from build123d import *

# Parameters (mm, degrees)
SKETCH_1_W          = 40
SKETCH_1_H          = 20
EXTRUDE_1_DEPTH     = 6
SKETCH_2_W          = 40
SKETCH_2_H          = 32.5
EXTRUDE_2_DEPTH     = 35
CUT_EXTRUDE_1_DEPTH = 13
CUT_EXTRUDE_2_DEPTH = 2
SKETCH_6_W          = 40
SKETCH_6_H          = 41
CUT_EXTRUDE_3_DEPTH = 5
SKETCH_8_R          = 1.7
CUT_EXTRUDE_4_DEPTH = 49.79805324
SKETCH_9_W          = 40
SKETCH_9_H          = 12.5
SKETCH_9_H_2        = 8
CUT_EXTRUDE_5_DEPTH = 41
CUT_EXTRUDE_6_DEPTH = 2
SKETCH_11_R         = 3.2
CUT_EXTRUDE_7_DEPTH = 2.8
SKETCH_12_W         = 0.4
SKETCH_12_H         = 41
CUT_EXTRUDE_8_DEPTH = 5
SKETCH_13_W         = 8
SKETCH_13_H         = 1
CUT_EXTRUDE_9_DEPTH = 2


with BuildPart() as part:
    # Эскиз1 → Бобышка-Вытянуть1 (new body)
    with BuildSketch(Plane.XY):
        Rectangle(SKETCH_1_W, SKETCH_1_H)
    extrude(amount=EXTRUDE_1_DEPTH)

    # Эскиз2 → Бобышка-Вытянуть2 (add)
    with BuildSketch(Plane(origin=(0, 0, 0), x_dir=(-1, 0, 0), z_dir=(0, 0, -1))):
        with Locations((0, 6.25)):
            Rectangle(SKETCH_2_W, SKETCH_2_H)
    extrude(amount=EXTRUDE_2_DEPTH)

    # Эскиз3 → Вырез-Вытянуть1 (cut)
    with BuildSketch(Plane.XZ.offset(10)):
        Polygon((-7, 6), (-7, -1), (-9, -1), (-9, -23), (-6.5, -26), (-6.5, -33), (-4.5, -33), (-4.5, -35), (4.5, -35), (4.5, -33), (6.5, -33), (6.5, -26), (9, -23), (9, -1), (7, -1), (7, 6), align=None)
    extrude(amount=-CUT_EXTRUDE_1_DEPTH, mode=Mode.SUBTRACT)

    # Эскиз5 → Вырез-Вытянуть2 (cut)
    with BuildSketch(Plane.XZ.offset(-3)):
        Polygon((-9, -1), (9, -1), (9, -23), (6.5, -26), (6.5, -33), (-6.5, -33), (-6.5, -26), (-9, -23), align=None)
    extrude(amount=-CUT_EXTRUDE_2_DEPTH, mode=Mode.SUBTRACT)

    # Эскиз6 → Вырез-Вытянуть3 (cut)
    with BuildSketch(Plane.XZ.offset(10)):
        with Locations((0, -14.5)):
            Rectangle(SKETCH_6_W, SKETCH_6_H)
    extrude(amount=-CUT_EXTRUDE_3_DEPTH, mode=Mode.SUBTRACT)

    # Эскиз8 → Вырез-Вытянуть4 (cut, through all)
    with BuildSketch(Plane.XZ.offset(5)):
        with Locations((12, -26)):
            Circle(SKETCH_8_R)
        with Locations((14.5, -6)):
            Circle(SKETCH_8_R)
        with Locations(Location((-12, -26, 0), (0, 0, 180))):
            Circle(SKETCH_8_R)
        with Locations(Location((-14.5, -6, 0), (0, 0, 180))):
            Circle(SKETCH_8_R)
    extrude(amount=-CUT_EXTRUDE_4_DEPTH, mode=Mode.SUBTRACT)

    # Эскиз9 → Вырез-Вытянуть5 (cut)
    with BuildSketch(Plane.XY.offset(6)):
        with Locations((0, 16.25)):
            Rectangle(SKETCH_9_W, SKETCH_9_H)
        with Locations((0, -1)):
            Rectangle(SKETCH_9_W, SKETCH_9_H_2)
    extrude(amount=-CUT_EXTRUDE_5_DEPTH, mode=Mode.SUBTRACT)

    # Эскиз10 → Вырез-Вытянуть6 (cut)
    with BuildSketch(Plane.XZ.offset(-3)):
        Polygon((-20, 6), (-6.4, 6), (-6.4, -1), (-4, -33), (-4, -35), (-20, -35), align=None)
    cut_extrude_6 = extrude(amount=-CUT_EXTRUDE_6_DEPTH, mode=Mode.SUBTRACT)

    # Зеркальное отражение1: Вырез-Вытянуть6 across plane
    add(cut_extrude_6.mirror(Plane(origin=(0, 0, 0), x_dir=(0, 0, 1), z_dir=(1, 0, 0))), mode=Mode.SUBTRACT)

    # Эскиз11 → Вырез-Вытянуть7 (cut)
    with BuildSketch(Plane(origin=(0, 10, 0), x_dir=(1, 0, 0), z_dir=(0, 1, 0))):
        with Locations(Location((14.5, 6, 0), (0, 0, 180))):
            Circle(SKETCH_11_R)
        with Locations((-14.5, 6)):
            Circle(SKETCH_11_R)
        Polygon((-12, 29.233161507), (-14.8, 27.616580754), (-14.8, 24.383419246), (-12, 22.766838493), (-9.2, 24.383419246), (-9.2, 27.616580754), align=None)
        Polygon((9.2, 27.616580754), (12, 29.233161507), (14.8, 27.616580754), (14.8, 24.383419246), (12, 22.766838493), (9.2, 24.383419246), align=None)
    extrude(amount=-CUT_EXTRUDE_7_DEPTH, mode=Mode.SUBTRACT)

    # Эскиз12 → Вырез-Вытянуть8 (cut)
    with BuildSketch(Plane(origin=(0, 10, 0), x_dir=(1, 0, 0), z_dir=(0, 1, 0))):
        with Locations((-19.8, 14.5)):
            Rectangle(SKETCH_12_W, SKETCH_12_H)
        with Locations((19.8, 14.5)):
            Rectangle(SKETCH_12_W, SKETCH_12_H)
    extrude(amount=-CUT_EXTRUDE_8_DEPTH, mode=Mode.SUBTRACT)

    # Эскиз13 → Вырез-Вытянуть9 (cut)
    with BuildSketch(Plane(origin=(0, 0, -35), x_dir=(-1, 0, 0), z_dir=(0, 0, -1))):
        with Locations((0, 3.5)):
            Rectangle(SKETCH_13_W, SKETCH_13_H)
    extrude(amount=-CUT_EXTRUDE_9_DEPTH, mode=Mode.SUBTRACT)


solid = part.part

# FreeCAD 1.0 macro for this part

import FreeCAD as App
import Part
import Sketcher
from FreeCAD import Vector
Q = App.Units.Quantity


def add_polygon(sketch, points):
    """Adds a closed chain of lines whose ends are joined by coincident constraints."""
    first, n = sketch.GeometryCount, len(points)
    for a, b in zip(points, points[1:] + points[:1]):
        sketch.addGeometry(Part.LineSegment(App.Vector(*a, 0), App.Vector(*b, 0)), False)
    for i in range(n):
        sketch.addConstraint(Sketcher.Constraint("Coincident", first + i, 2, first + (i + 1) % n, 1))

doc = App.newDocument("Part")
body = doc.addObject("PartDesign::Body", "Body")

sketch1 = body.newObject("Sketcher::SketchObject", "Sketch")
sketch1.AttachmentSupport = (doc.getObject("XY_Plane"), [""])
sketch1.MapMode = "FlatFace"
add_polygon(sketch1, [(-20, 10), (-20, -10), (20, -10), (20, 10)])
sketch1.addConstraint(Sketcher.Constraint("Vertical", 0))
sketch1.addConstraint(Sketcher.Constraint("Horizontal", 1))
sketch1.addConstraint(Sketcher.Constraint("Vertical", 2))
sketch1.addConstraint(Sketcher.Constraint("Horizontal", 3))
sketch1.addConstraint(Sketcher.Constraint("Symmetric", 0, 2, 2, 2, -1, 1))
sketch1.addConstraint(Sketcher.Constraint("DistanceX", 1, 1, 1, 2, Q("40 mm")))
sketch1.addConstraint(Sketcher.Constraint("DistanceY", 0, 2, 0, 1, Q("20 mm")))
pad1 = body.newObject("PartDesign::Pad", "Pad")
pad1.Profile = sketch1
pad1.Length = 6

sketch2 = body.newObject("Sketcher::SketchObject", "Sketch001")
sketch2.AttachmentSupport = (doc.getObject("XY_Plane"), [""])
sketch2.MapMode = "FlatFace"
add_polygon(sketch2, [(20, 22), (20, -10), (-20, -10), (-20, 22)])
sketch2.addConstraint(Sketcher.Constraint("Vertical", 0))
sketch2.addConstraint(Sketcher.Constraint("Horizontal", 1))
sketch2.addConstraint(Sketcher.Constraint("Vertical", 2))
sketch2.addConstraint(Sketcher.Constraint("Horizontal", 3))
sketch2.addConstraint(Sketcher.Constraint("DistanceX", 1, 2, 1, 1, Q("40 mm")))
sketch2.addConstraint(Sketcher.Constraint("DistanceY", 0, 2, 0, 1, Q("32.5 mm")))
sketch2.addConstraint(Sketcher.Constraint("DistanceX", -1, 1, 0, 2, Q("20 mm")))
sketch2.addConstraint(Sketcher.Constraint("DistanceY", 0, 2, -1, 1, Q("10 mm")))
pad2 = body.newObject("PartDesign::Pad", "Pad001")
pad2.Profile = sketch2
pad2.Length = 35
pad2.Reversed = True

sketch3 = body.newObject("Sketcher::SketchObject", "Sketch002")
sketch3.AttachmentSupport = (doc.getObject("XZ_Plane"), [""])
sketch3.MapMode = "FlatFace"
sketch3.AttachmentOffset = App.Placement(Vector(0, 0, 10), App.Rotation())
add_polygon(sketch3, [(-7, 6), (-7, -1), (-9, -1), (-9, -23), (-6.5, -26), (-6.5, -33), (-4.5, -33), (-4.5, -35), (4.5, -35), (4.5, -33), (6.5, -33), (6.5, -26), (9, -23), (9, -1), (7, -1), (7, 6)])
sketch3.addConstraint(Sketcher.Constraint("Vertical", 0))
sketch3.addConstraint(Sketcher.Constraint("Horizontal", 1))
sketch3.addConstraint(Sketcher.Constraint("Vertical", 2))
sketch3.addConstraint(Sketcher.Constraint("Vertical", 4))
sketch3.addConstraint(Sketcher.Constraint("Horizontal", 5))
sketch3.addConstraint(Sketcher.Constraint("Vertical", 6))
sketch3.addConstraint(Sketcher.Constraint("Horizontal", 7))
sketch3.addConstraint(Sketcher.Constraint("Vertical", 8))
sketch3.addConstraint(Sketcher.Constraint("Horizontal", 9))
sketch3.addConstraint(Sketcher.Constraint("Vertical", 10))
sketch3.addConstraint(Sketcher.Constraint("Vertical", 12))
sketch3.addConstraint(Sketcher.Constraint("Horizontal", 13))
sketch3.addConstraint(Sketcher.Constraint("Vertical", 14))
sketch3.addConstraint(Sketcher.Constraint("Horizontal", 15))
sketch3.addConstraint(Sketcher.Constraint("Symmetric", 5, 2, 8, 2, -2))
sketch3.addConstraint(Sketcher.Constraint("Symmetric", 3, 2, 10, 2, -2))
sketch3.addConstraint(Sketcher.Constraint("Symmetric", 2, 2, 11, 2, -2))
sketch3.addConstraint(Sketcher.Constraint("Symmetric", 0, 2, 13, 2, -2))
sketch3.addConstraint(Sketcher.Constraint("Equal", 1, 5))
sketch3.addConstraint(Sketcher.Constraint("Equal", 0, 4))
sketch3.addConstraint(Sketcher.Constraint("Equal", 13, 6))
sketch3.addConstraint(Sketcher.Constraint("DistanceX", 1, 2, 1, 1, Q("2 mm")))
sketch3.addConstraint(Sketcher.Constraint("DistanceX", 7, 1, 7, 2, Q("9 mm")))
sketch3.addConstraint(Sketcher.Constraint("DistanceX", 15, 2, 15, 1, Q("14 mm")))
sketch3.addConstraint(Sketcher.Constraint("DistanceY", 0, 2, 0, 1, Q("7 mm")))
sketch3.addConstraint(Sketcher.Constraint("DistanceY", 2, 2, 2, 1, Q("22 mm")))
sketch3.addConstraint(Sketcher.Constraint("DistanceY", 0, 2, -1, 1, Q("1 mm")))
sketch3.addConstraint(Sketcher.Constraint("DistanceY", 3, 2, -1, 1, Q("26 mm")))
pocket1 = body.newObject("PartDesign::Pocket", "Pocket")
pocket1.Profile = sketch3
pocket1.Length = 13

sketch4 = body.newObject("Sketcher::SketchObject", "Sketch003")
sketch4.AttachmentSupport = (doc.getObject("XZ_Plane"), [""])
sketch4.MapMode = "FlatFace"
sketch4.AttachmentOffset = App.Placement(Vector(0, 0, -3), App.Rotation())
add_polygon(sketch4, [(9, -1), (-9, -1), (-9, -23), (-6.5, -26), (-6.5, -33), (6.5, -33), (6.5, -26), (9, -23)])
sketch4.addConstraint(Sketcher.Constraint("Horizontal", 0))
sketch4.addConstraint(Sketcher.Constraint("Vertical", 1))
sketch4.addConstraint(Sketcher.Constraint("Vertical", 3))
sketch4.addConstraint(Sketcher.Constraint("Horizontal", 4))
sketch4.addConstraint(Sketcher.Constraint("Vertical", 5))
sketch4.addConstraint(Sketcher.Constraint("Vertical", 7))
sketch4.addConstraint(Sketcher.Constraint("Symmetric", 2, 2, 5, 2, -2))
sketch4.addConstraint(Sketcher.Constraint("Symmetric", 1, 2, 6, 2, -2))
sketch4.addConstraint(Sketcher.Constraint("DistanceX", 0, 2, 0, 1, Q("18 mm")))
sketch4.addConstraint(Sketcher.Constraint("DistanceX", 4, 1, 4, 2, Q("13 mm")))
sketch4.addConstraint(Sketcher.Constraint("DistanceY", 1, 2, 1, 1, Q("22 mm")))
sketch4.addConstraint(Sketcher.Constraint("DistanceY", 3, 2, 3, 1, Q("7 mm")))
sketch4.addConstraint(Sketcher.Constraint("DistanceY", 0, 2, -1, 1, Q("1 mm")))
sketch4.addConstraint(Sketcher.Constraint("DistanceY", 2, 2, -1, 1, Q("26 mm")))
pocket2 = body.newObject("PartDesign::Pocket", "Pocket001")
pocket2.Profile = sketch4
pocket2.Length = 2

sketch5 = body.newObject("Sketcher::SketchObject", "Sketch004")
sketch5.AttachmentSupport = (doc.getObject("XZ_Plane"), [""])
sketch5.MapMode = "FlatFace"
sketch5.AttachmentOffset = App.Placement(Vector(0, 0, 10), App.Rotation())
add_polygon(sketch5, [(-20, 6), (-20, -35), (20, -35), (20, 6)])
sketch5.addConstraint(Sketcher.Constraint("Vertical", 0))
sketch5.addConstraint(Sketcher.Constraint("Horizontal", 1))
sketch5.addConstraint(Sketcher.Constraint("Vertical", 2))
sketch5.addConstraint(Sketcher.Constraint("Horizontal", 3))
sketch5.addConstraint(Sketcher.Constraint("DistanceX", 1, 1, 1, 2, Q("40 mm")))
sketch5.addConstraint(Sketcher.Constraint("DistanceY", 0, 2, 0, 1, Q("41 mm")))
sketch5.addConstraint(Sketcher.Constraint("DistanceX", 0, 2, -1, 1, Q("20 mm")))
sketch5.addConstraint(Sketcher.Constraint("DistanceY", 0, 2, -1, 1, Q("35 mm")))
pocket3 = body.newObject("PartDesign::Pocket", "Pocket002")
pocket3.Profile = sketch5
pocket3.Length = 5

sketch6 = body.newObject("Sketcher::SketchObject", "Sketch005")
sketch6.AttachmentSupport = (doc.getObject("XZ_Plane"), [""])
sketch6.MapMode = "FlatFace"
sketch6.AttachmentOffset = App.Placement(Vector(0, 0, 5), App.Rotation())
sketch6.addGeometry(Part.Circle(Vector(12, -26, 0), Vector(0, 0, 1), 1.7), False)
sketch6.addGeometry(Part.Circle(Vector(14.5, -6, 0), Vector(0, 0, 1), 1.7), False)
sketch6.addGeometry(Part.Circle(Vector(-12, -26, 0), Vector(0, 0, 1), 1.7), False)
sketch6.addGeometry(Part.Circle(Vector(-14.5, -6, 0), Vector(0, 0, 1), 1.7), False)
sketch6.addConstraint(Sketcher.Constraint("Equal", 0, 1))
sketch6.addConstraint(Sketcher.Constraint("Equal", 1, 2))
sketch6.addConstraint(Sketcher.Constraint("Equal", 2, 3))
sketch6.addConstraint(Sketcher.Constraint("Symmetric", 0, 3, 2, 3, -2))
sketch6.addConstraint(Sketcher.Constraint("Symmetric", 1, 3, 3, 3, -2))
sketch6.addConstraint(Sketcher.Constraint("Diameter", 0, Q("3.4 mm")))
sketch6.addConstraint(Sketcher.Constraint("DistanceX", -1, 1, 0, 3, Q("12 mm")))
sketch6.addConstraint(Sketcher.Constraint("DistanceY", 0, 3, -1, 1, Q("26 mm")))
sketch6.addConstraint(Sketcher.Constraint("DistanceY", 1, 3, -1, 1, Q("6 mm")))
sketch6.addConstraint(Sketcher.Constraint("DistanceX", 3, 3, 1, 3, Q("29 mm")))
pocket4 = body.newObject("PartDesign::Pocket", "Pocket003")
pocket4.Profile = sketch6
pocket4.Type = "ThroughAll"

sketch7 = body.newObject("Sketcher::SketchObject", "Sketch006")
sketch7.AttachmentSupport = (doc.getObject("XY_Plane"), [""])
sketch7.MapMode = "FlatFace"
sketch7.AttachmentOffset = App.Placement(Vector(0, 0, 6), App.Rotation())
add_polygon(sketch7, [(-20, 22), (-20, 10), (20, 10), (20, 22)])
add_polygon(sketch7, [(-20, 3), (-20, -5), (20, -5), (20, 3)])
sketch7.addConstraint(Sketcher.Constraint("Vertical", 0))
sketch7.addConstraint(Sketcher.Constraint("Horizontal", 1))
sketch7.addConstraint(Sketcher.Constraint("Vertical", 2))
sketch7.addConstraint(Sketcher.Constraint("Horizontal", 3))
sketch7.addConstraint(Sketcher.Constraint("Vertical", 4))
sketch7.addConstraint(Sketcher.Constraint("Horizontal", 5))
sketch7.addConstraint(Sketcher.Constraint("Vertical", 6))
sketch7.addConstraint(Sketcher.Constraint("Horizontal", 7))
sketch7.addConstraint(Sketcher.Constraint("Vertical", 3, 2, 4, 2))
sketch7.addConstraint(Sketcher.Constraint("Vertical", 2, 2, 5, 2))
sketch7.addConstraint(Sketcher.Constraint("DistanceX", 1, 1, 1, 2, Q("40 mm")))
sketch7.addConstraint(Sketcher.Constraint("DistanceY", 4, 2, 4, 1, Q("8 mm")))
sketch7.addConstraint(Sketcher.Constraint("DistanceY", 0, 2, 0, 1, Q("12.5 mm")))
sketch7.addConstraint(Sketcher.Constraint("DistanceX", 0, 2, -1, 1, Q("20 mm")))
sketch7.addConstraint(Sketcher.Constraint("DistanceY", -1, 1, 0, 2, Q("10 mm")))
sketch7.addConstraint(Sketcher.Constraint("DistanceY", 4, 2, -1, 1, Q("5 mm")))
pocket5 = body.newObject("PartDesign::Pocket", "Pocket004")
pocket5.Profile = sketch7
pocket5.Length = 41

sketch8 = body.newObject("Sketcher::SketchObject", "Sketch007")
sketch8.AttachmentSupport = (doc.getObject("XZ_Plane"), [""])
sketch8.MapMode = "FlatFace"
sketch8.AttachmentOffset = App.Placement(Vector(0, 0, -3), App.Rotation())
add_polygon(sketch8, [(-6.4, 6), (-20, 6), (-20, -35), (-4, -35), (-4, -33), (-6.4, -1)])
sketch8.addConstraint(Sketcher.Constraint("Horizontal", 0))
sketch8.addConstraint(Sketcher.Constraint("Vertical", 1))
sketch8.addConstraint(Sketcher.Constraint("Horizontal", 2))
sketch8.addConstraint(Sketcher.Constraint("Vertical", 3))
sketch8.addConstraint(Sketcher.Constraint("Vertical", 5))
sketch8.addConstraint(Sketcher.Constraint("DistanceX", 2, 1, 2, 2, Q("16 mm")))
sketch8.addConstraint(Sketcher.Constraint("DistanceY", 1, 2, 1, 1, Q("41 mm")))
sketch8.addConstraint(Sketcher.Constraint("DistanceY", 3, 1, 3, 2, Q("2 mm")))
sketch8.addConstraint(Sketcher.Constraint("DistanceY", 5, 1, 5, 2, Q("7 mm")))
sketch8.addConstraint(Sketcher.Constraint("DistanceX", 0, 2, 0, 1, Q("13.6 mm")))
sketch8.addConstraint(Sketcher.Constraint("DistanceX", 0, 2, -1, 1, Q("20 mm")))
sketch8.addConstraint(Sketcher.Constraint("DistanceY", -1, 1, 0, 2, Q("6 mm")))
pocket6 = body.newObject("PartDesign::Pocket", "Pocket005")
pocket6.Profile = sketch8
pocket6.Length = 2
doc.recompute()

mirrored = body.newObject("PartDesign::Mirrored", "Mirrored")
mirrored.Originals = [pocket6]
mirrored.MirrorPlane = (doc.getObject("YZ_Plane"), [""])
body.Tip = mirrored

sketch9 = body.newObject("Sketcher::SketchObject", "Sketch008")
sketch9.AttachmentSupport = (doc.getObject("XZ_Plane"), [""])
sketch9.MapMode = "FlatFace"
sketch9.AttachmentOffset = App.Placement(Vector(0, 0, -10), App.Rotation())
sketch9.addGeometry(Part.Circle(Vector(14.5, -6, 0), Vector(0, 0, 1), 3.2), False)
sketch9.addGeometry(Part.Circle(Vector(-14.5, -6, 0), Vector(0, 0, 1), 3.2), False)
add_polygon(sketch9, [(-12, -29.2), (-14.8, -27.6), (-14.8, -24.4), (-12, -22.8), (-9.2, -24.4), (-9.2, -27.6)])
add_polygon(sketch9, [(12, -29.2), (9.2, -27.6), (9.2, -24.4), (12, -22.8), (14.8, -24.4), (14.8, -27.6)])
sketch9.addConstraint(Sketcher.Constraint("Vertical", 3))
sketch9.addConstraint(Sketcher.Constraint("Vertical", 6))
sketch9.addConstraint(Sketcher.Constraint("Vertical", 9))
sketch9.addConstraint(Sketcher.Constraint("Vertical", 12))
sketch9.addConstraint(Sketcher.Constraint("Equal", 0, 1))
sketch9.addConstraint(Sketcher.Constraint("Symmetric", 0, 3, 1, 3, -2))
sketch9.addConstraint(Sketcher.Constraint("Symmetric", 6, 2, 8, 2, -2))
sketch9.addConstraint(Sketcher.Constraint("Symmetric", 4, 2, 10, 2, -2))
sketch9.addConstraint(Sketcher.Constraint("Symmetric", 3, 2, 11, 2, -2))
sketch9.addConstraint(Sketcher.Constraint("Symmetric", 7, 2, 13, 2, -2))
sketch9.addConstraint(Sketcher.Constraint("Parallel", 2, 5))
sketch9.addConstraint(Sketcher.Constraint("Parallel", 4, 7))
sketch9.addConstraint(Sketcher.Constraint("Parallel", 5, 8))
sketch9.addConstraint(Sketcher.Constraint("Parallel", 7, 10))
sketch9.addConstraint(Sketcher.Constraint("Parallel", 10, 13))
sketch9.addConstraint(Sketcher.Constraint("Horizontal", 3, 2, 5, 2))
sketch9.addConstraint(Sketcher.Constraint("Horizontal", 2, 2, 6, 2))
sketch9.addConstraint(Sketcher.Constraint("Diameter", 0, Q("6.4 mm")))
sketch9.addConstraint(Sketcher.Constraint("Angle", 2, Q("150 deg")))
sketch9.addConstraint(Sketcher.Constraint("DistanceY", 0, 3, -1, 1, Q("6 mm")))
sketch9.addConstraint(Sketcher.Constraint("DistanceX", 4, 2, -1, 1, Q("12 mm")))
sketch9.addConstraint(Sketcher.Constraint("DistanceX", 1, 3, 0, 3, Q("29 mm")))
sketch9.addConstraint(Sketcher.Constraint("DistanceX", 2, 2, -1, 1, Q("14.8 mm")))
sketch9.addConstraint(Sketcher.Constraint("DistanceY", 3, 1, 3, 2, Q("3.233162 mm")))
sketch9.addConstraint(Sketcher.Constraint("DistanceY", 2, 2, -1, 1, Q("27.616581 mm")))
pocket7 = body.newObject("PartDesign::Pocket", "Pocket006")
pocket7.Profile = sketch9
pocket7.Length = 2.8
pocket7.Reversed = True

sketch10 = body.newObject("Sketcher::SketchObject", "Sketch009")
sketch10.AttachmentSupport = (doc.getObject("XZ_Plane"), [""])
sketch10.MapMode = "FlatFace"
sketch10.AttachmentOffset = App.Placement(Vector(0, 0, -10), App.Rotation())
add_polygon(sketch10, [(-20, -35), (-20, 6), (-19.6, 6), (-19.6, -35)])
add_polygon(sketch10, [(19.6, -35), (19.6, 6), (20, 6), (20, -35)])
sketch10.addConstraint(Sketcher.Constraint("Vertical", 0))
sketch10.addConstraint(Sketcher.Constraint("Horizontal", 1))
sketch10.addConstraint(Sketcher.Constraint("Vertical", 2))
sketch10.addConstraint(Sketcher.Constraint("Horizontal", 3))
sketch10.addConstraint(Sketcher.Constraint("Vertical", 4))
sketch10.addConstraint(Sketcher.Constraint("Horizontal", 5))
sketch10.addConstraint(Sketcher.Constraint("Vertical", 6))
sketch10.addConstraint(Sketcher.Constraint("Horizontal", 7))
sketch10.addConstraint(Sketcher.Constraint("Symmetric", 1, 2, 4, 2, -2))
sketch10.addConstraint(Sketcher.Constraint("Symmetric", 3, 2, 6, 2, -2))
sketch10.addConstraint(Sketcher.Constraint("DistanceY", 0, 1, 0, 2, Q("41 mm")))
sketch10.addConstraint(Sketcher.Constraint("DistanceX", 1, 1, 1, 2, Q("0.4 mm")))
sketch10.addConstraint(Sketcher.Constraint("DistanceX", 0, 2, -1, 1, Q("20 mm")))
sketch10.addConstraint(Sketcher.Constraint("DistanceY", -1, 1, 0, 2, Q("6 mm")))
pocket8 = body.newObject("PartDesign::Pocket", "Pocket007")
pocket8.Profile = sketch10
pocket8.Length = 5
pocket8.Reversed = True

sketch11 = body.newObject("Sketcher::SketchObject", "Sketch010")
sketch11.AttachmentSupport = (doc.getObject("XY_Plane"), [""])
sketch11.MapMode = "FlatFace"
sketch11.AttachmentOffset = App.Placement(Vector(0, 0, -35), App.Rotation())
add_polygon(sketch11, [(4, 4), (4, 3), (-4, 3), (-4, 4)])
sketch11.addConstraint(Sketcher.Constraint("Vertical", 0))
sketch11.addConstraint(Sketcher.Constraint("Horizontal", 1))
sketch11.addConstraint(Sketcher.Constraint("Vertical", 2))
sketch11.addConstraint(Sketcher.Constraint("Horizontal", 3))
sketch11.addConstraint(Sketcher.Constraint("DistanceX", 1, 2, 1, 1, Q("8 mm")))
sketch11.addConstraint(Sketcher.Constraint("DistanceY", 0, 2, 0, 1, Q("1 mm")))
sketch11.addConstraint(Sketcher.Constraint("DistanceX", -1, 1, 0, 2, Q("4 mm")))
sketch11.addConstraint(Sketcher.Constraint("DistanceY", -1, 1, 0, 2, Q("3 mm")))
pocket9 = body.newObject("PartDesign::Pocket", "Pocket008")
pocket9.Profile = sketch11
pocket9.Length = 2
pocket9.Reversed = True

doc.recompute()
